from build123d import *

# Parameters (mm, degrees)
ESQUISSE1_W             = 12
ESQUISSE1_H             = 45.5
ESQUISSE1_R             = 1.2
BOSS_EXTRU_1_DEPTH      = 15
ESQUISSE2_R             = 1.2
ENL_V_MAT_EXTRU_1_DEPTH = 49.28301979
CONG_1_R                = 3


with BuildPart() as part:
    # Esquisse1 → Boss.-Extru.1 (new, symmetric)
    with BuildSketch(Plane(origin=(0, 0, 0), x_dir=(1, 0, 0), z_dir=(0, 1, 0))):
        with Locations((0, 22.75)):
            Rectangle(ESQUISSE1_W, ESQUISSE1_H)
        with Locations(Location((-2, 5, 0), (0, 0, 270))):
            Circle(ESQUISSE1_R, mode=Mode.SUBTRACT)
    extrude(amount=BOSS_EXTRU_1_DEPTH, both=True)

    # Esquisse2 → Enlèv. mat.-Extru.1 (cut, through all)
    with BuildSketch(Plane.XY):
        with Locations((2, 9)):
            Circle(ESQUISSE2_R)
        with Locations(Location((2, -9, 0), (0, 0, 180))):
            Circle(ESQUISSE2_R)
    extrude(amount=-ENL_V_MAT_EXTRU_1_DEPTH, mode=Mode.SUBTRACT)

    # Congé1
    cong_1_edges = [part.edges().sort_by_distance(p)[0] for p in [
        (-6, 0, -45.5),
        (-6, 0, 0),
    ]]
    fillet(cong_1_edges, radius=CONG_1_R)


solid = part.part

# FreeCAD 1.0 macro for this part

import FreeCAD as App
import Part
import Sketcher
from FreeCAD import Vector
Q = App.Units.Quantity


def edges_at(feature, points):
    """Names of the edges that pass closest to the given points."""
    edges = feature.Shape.Edges
    near = lambda p: min(range(len(edges)), key=lambda i: edges[i].distToShape(Part.Vertex(*p))[0])
    return sorted({f"Edge{near(p) + 1}" for p in points})

doc = App.newDocument("Part")
body = doc.addObject("PartDesign::Body", "Body")

# Sketch on XZ plane
sketch1 = body.newObject("Sketcher::SketchObject", "Sketch")
sketch1.AttachmentSupport = (doc.getObject("XZ_Plane"), [""])
sketch1.MapMode = "FlatFace"
sketch1.addGeometry([
    Part.LineSegment(Vector(-6, -45.5, 0), Vector(-6, 0, 0)),  # 0
    Part.LineSegment(Vector(-6, 0, 0), Vector(6, 0, 0)),  # 1
    Part.LineSegment(Vector(6, 0, 0), Vector(6, -45.5, 0)),  # 2
    Part.LineSegment(Vector(6, -45.5, 0), Vector(-6, -45.5, 0)),  # 3
    Part.Circle(Vector(-2, -5, 0), Vector(0, 0, 1), 1.2),  # 4
], False)
sketch1.addConstraint([
    Sketcher.Constraint("Coincident", 0, 2, 1, 1),
    Sketcher.Constraint("Coincident", 1, 2, 2, 1),
    Sketcher.Constraint("Coincident", 2, 2, 3, 1),
    Sketcher.Constraint("Coincident", 3, 2, 0, 1),
    Sketcher.Constraint("Vertical", 0),
    Sketcher.Constraint("Horizontal", 1),
    Sketcher.Constraint("Vertical", 2),
    Sketcher.Constraint("Horizontal", 3),
    Sketcher.Constraint("Symmetric", 0, 2, 1, 2, -1, 1),
    Sketcher.Constraint("Diameter", 4, Q("2.4 mm")),
    Sketcher.Constraint("DistanceX", 1, 1, 1, 2, Q("12 mm")),
    Sketcher.Constraint("DistanceY", 0, 1, 0, 2, Q("45.5 mm")),
    Sketcher.Constraint("DistanceX", 4, 3, -1, 1, Q("2 mm")),
    Sketcher.Constraint("DistanceY", 4, 3, -1, 1, Q("5 mm")),
])
pad1 = body.newObject("PartDesign::Pad", "Pad")
pad1.Profile = sketch1
pad1.Length = 30
pad1.Midplane = True

# Sketch on XY plane
sketch2 = body.newObject("Sketcher::SketchObject", "Sketch001")
sketch2.AttachmentSupport = (doc.getObject("XY_Plane"), [""])
sketch2.MapMode = "FlatFace"
sketch2.addGeometry([
    Part.Circle(Vector(2, 9, 0), Vector(0, 0, 1), 1.2),
    Part.Circle(Vector(2, -9, 0), Vector(0, 0, 1), 1.2),
], False)
sketch2.addConstraint([
    Sketcher.Constraint("Equal", 0, 1),
    Sketcher.Constraint("Symmetric", 0, 3, 1, 3, -1),
    Sketcher.Constraint("Diameter", 0, Q("2.4 mm")),
    Sketcher.Constraint("DistanceX", -1, 1, 0, 3, Q("2 mm")),
    Sketcher.Constraint("DistanceY", -1, 1, 0, 3, Q("9 mm")),
])
pocket1 = body.newObject("PartDesign::Pocket", "Pocket")
pocket1.Profile = sketch2
pocket1.Type = "ThroughAll"
doc.recompute()

fillet = body.newObject("PartDesign::Fillet", "Fillet")
fillet.Base = (pocket1, edges_at(pocket1, [(-6, 0, -45.5), (-6, 0, 0)]))
fillet.Radius = 3

doc.recompute()
